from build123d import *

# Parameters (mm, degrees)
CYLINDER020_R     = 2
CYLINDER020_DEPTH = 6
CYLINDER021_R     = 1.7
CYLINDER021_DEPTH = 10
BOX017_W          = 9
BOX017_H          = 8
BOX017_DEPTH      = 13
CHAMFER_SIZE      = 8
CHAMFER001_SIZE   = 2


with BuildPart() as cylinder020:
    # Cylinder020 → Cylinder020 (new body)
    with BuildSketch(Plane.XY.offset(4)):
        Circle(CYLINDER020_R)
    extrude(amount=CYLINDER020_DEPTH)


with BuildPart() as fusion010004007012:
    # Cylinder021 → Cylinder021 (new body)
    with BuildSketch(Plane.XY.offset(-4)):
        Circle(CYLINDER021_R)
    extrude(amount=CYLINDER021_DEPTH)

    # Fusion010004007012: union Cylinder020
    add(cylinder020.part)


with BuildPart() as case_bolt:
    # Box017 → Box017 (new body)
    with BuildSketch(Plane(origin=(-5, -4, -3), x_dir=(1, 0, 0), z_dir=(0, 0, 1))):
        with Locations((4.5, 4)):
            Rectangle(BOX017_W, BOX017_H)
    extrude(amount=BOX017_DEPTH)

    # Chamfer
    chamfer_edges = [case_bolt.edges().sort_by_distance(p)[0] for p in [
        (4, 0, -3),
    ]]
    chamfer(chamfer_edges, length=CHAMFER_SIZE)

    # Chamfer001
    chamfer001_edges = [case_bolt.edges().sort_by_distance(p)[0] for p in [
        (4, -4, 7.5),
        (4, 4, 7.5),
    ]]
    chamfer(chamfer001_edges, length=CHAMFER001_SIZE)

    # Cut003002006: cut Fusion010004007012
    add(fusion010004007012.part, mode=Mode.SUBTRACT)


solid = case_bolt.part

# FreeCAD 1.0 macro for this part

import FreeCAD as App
import Part
import Sketcher

V = App.Vector
Q = App.Units.Quantity


def edges_at(feature, points):
    """Names of the edges that pass closest to the given points."""
    edges = feature.Shape.Edges
    near = lambda p: min(range(len(edges)), key=lambda i: edges[i].distToShape(Part.Vertex(*p))[0])
    return sorted({f"Edge{near(p) + 1}" for p in points})


def add_polygon(sketch, points):
    """Adds a closed chain of lines whose ends are joined by coincident constraints."""
    first, n = sketch.GeometryCount, len(points)
    for a, b in zip(points, points[1:] + points[:1]):
        sketch.addGeometry(Part.LineSegment(App.Vector(*a, 0), App.Vector(*b, 0)), False)
    for i in range(n):
        sketch.addConstraint(Sketcher.Constraint("Coincident", first + i, 2, first + (i + 1) % n, 1))

doc = App.newDocument("Part")
params = doc.addObject("Spreadsheet::Sheet", "Params")
for row, (alias, value) in enumerate([
    ("sketch1_diameter", "4 mm"),
    ("pad1_length", "6 mm"),
    ("sketch2_diameter", "3.4 mm"),
    ("pad2_length", "10 mm"),
    ("sketch3_width", "9 mm"),
    ("sketch3_height", "8 mm"),
    ("pad3_length", "13 mm"),
    ("chamfer_size", "8 mm"),
    ("chamfer2_size", "2 mm"),
], start=1):
    params.set(f"A{row}", alias)
    params.set(f"B{row}", "=" + value)
    params.setAlias(f"B{row}", alias)

body = doc.addObject("PartDesign::Body", "Body")

# Sketch on XY plane
sketch1 = body.newObject("Sketcher::SketchObject", "Sketch")
sketch1.AttachmentSupport = (doc.getObject("XY_Plane"), [""])
sketch1.MapMode = "FlatFace"
sketch1.AttachmentOffset = App.Placement(V(0, 0, 4), App.Rotation())
sketch1.addGeometry(Part.Circle(V(0, 0, 0), V(0, 0, 1), 2), False)
sketch1.addConstraint(Sketcher.Constraint("Coincident", 0, 3, -1, 1))
sketch1.addConstraint(Sketcher.Constraint("Diameter", 0, Q("4 mm")))
sketch1.setExpression("Constraints[1]", "Params.sketch1_diameter")
pad1 = body.newObject("PartDesign::Pad", "Pad")
pad1.Profile = sketch1
pad1.setExpression("Length", "Params.pad1_length")
body2 = doc.addObject("PartDesign::Body", "Body001")

# Sketch on XY plane
sketch2 = body2.newObject("Sketcher::SketchObject", "Sketch001")
sketch2.AttachmentSupport = (doc.getObject("XY_Plane001"), [""])
sketch2.MapMode = "FlatFace"
sketch2.AttachmentOffset = App.Placement(V(0, 0, -4), App.Rotation())
sketch2.addGeometry(Part.Circle(V(0, 0, 0), V(0, 0, 1), 1.7), False)
sketch2.addConstraint(Sketcher.Constraint("Coincident", 0, 3, -1, 1))
sketch2.addConstraint(Sketcher.Constraint("Diameter", 0, Q("3.4 mm")))
sketch2.setExpression("Constraints[1]", "Params.sketch2_diameter")
pad2 = body2.newObject("PartDesign::Pad", "Pad001")
pad2.Profile = sketch2
pad2.setExpression("Length", "Params.pad2_length")
doc.recompute()

boolean = body2.newObject("PartDesign::Boolean", "Boolean")
boolean.Type = "Fuse"
boolean.addObjects([body])
body3 = doc.addObject("PartDesign::Body", "Body002")

# Sketch on XY plane
sketch3 = body3.newObject("Sketcher::SketchObject", "Sketch002")
sketch3.AttachmentSupport = (doc.getObject("XY_Plane002"), [""])
sketch3.MapMode = "FlatFace"
sketch3.AttachmentOffset = App.Placement(V(0, 0, -3), App.Rotation())
add_polygon(sketch3, [(-5, 4), (-5, -4), (4, -4), (4, 4)])  # lines 0-3
sketch3.addConstraint(Sketcher.Constraint("Vertical", 0))
sketch3.addConstraint(Sketcher.Constraint("Horizontal", 1))
sketch3.addConstraint(Sketcher.Constraint("Vertical", 2))
sketch3.addConstraint(Sketcher.Constraint("Horizontal", 3))
sketch3.addConstraint(Sketcher.Constraint("DistanceX", 1, 1, 1, 2, Q("9 mm")))
sketch3.addConstraint(Sketcher.Constraint("DistanceY", 0, 2, 0, 1, Q("8 mm")))
sketch3.addConstraint(Sketcher.Constraint("DistanceX", 0, 2, -1, 1, Q("5 mm")))
sketch3.addConstraint(Sketcher.Constraint("DistanceY", 0, 2, -1, 1, Q("4 mm")))
sketch3.setExpression("Constraints[8]", "Params.sketch3_width")
sketch3.setExpression("Constraints[9]", "Params.sketch3_height")
pad3 = body3.newObject("PartDesign::Pad", "Pad002")
pad3.Profile = sketch3
pad3.setExpression("Length", "Params.pad3_length")
doc.recompute()

chamfer = body3.newObject("PartDesign::Chamfer", "Chamfer")
chamfer.Base = (pad3, edges_at(pad3, [(4, 0, -3)]))
chamfer.setExpression("Size", "Params.chamfer_size")
doc.recompute()

chamfer2 = body3.newObject("PartDesign::Chamfer", "Chamfer001")
chamfer2.Base = (chamfer, edges_at(chamfer, [(4, -4, 7.5), (4, 4, 7.5)]))
chamfer2.setExpression("Size", "Params.chamfer2_size")
doc.recompute()

boolean2 = body3.newObject("PartDesign::Boolean", "Boolean001")
boolean2.Type = "Cut"
boolean2.addObjects([body2])

doc.recompute()
